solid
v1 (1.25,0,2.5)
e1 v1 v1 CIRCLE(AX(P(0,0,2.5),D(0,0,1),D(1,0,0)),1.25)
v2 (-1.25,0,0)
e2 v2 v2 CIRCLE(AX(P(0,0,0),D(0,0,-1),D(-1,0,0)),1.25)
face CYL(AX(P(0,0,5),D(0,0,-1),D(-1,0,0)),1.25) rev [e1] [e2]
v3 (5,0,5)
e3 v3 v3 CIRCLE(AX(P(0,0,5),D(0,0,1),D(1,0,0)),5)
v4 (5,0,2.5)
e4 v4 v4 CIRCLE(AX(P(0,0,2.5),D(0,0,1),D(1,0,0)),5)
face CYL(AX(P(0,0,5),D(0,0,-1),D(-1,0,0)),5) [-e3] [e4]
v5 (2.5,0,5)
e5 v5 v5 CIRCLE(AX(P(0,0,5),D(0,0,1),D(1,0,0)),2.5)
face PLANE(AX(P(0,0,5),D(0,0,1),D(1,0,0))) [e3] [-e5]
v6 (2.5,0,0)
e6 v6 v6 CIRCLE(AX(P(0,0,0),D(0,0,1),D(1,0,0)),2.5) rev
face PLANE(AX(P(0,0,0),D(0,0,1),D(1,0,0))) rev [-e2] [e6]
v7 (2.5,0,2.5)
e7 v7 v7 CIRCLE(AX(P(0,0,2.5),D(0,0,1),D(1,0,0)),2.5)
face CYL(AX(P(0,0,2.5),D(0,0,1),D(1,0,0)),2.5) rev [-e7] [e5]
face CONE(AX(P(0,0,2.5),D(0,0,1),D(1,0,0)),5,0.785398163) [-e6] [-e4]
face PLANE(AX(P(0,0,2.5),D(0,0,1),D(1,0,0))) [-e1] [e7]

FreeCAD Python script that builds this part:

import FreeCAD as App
import Part
import Sketcher
from FreeCAD import Vector


def edges_at(feature, points):
    """Names of the edges that pass closest to the given points."""
    edges = feature.Shape.Edges
    near = lambda p: min(range(len(edges)), key=lambda i: edges[i].distToShape(Part.Vertex(*p))[0])
    return sorted({f"Edge{near(p) + 1}" for p in points})

doc = App.newDocument("Part")
body = doc.addObject("PartDesign::Body", "Body")

# Sketch on XY plane
sketch1 = doc.addObject("Sketcher::SketchObject", "Sketch")
body.addObject(sketch1)
sketch1.AttachmentSupport = (doc.XY_Plane, [""])
sketch1.MapMode = "FlatFace"
sketch1.addGeometry(Part.Circle(Vector(0, 0, 0), Vector(0, 0, 1), 5), False)
sketch1.addConstraint([
    Sketcher.Constraint("Coincident", 0, 3, -1, 1),
    Sketcher.Constraint("Diameter", 0, 10.0),
])
pad1 = doc.addObject("PartDesign::Pad", "Pad")
body.addObject(pad1)
pad1.Profile = sketch1
pad1.Length = 5

# Sketch on XY plane
sketch2 = doc.addObject("Sketcher::SketchObject", "Sketch001")
body.addObject(sketch2)
sketch2.AttachmentSupport = (doc.XY_Plane, [""])
sketch2.MapMode = "FlatFace"
sketch2.AttachmentOffset = App.Placement(Vector(0, 0, 5), App.Rotation())
sketch2.addGeometry(Part.Circle(Vector(0, 0, 0), Vector(0, 0, 1), 2.5), False)
sketch2.addConstraint([
    Sketcher.Constraint("Coincident", 0, 3, -1, 1),
    Sketcher.Constraint("Diameter", 0, 5.0),
])
pocket1 = doc.addObject("PartDesign::Pocket", "Pocket")
body.addObject(pocket1)
pocket1.Profile = sketch2
pocket1.Length = 2.5

# Sketch on XY plane
sketch3 = doc.addObject("Sketcher::SketchObject", "Sketch002")
body.addObject(sketch3)
sketch3.AttachmentSupport = (doc.XY_Plane, [""])
sketch3.MapMode = "FlatFace"
sketch3.addGeometry(Part.Circle(Vector(0, 0, 0), Vector(0, 0, 1), 1.2), False)
sketch3.addConstraint([
    Sketcher.Constraint("Coincident", 0, 3, -1, 1),
    Sketcher.Constraint("Diameter", 0, 2.5),
])
pocket2 = doc.addObject("PartDesign::Pocket", "Pocket001")
body.addObject(pocket2)
pocket2.Profile = sketch3
pocket2.Type = "ThroughAll"
pocket2.Reversed = True
doc.recompute()

chamfer = doc.addObject("PartDesign::Chamfer", "Chamfer")
body.addObject(chamfer)
chamfer.Base = (pocket2, edges_at(pocket2, [(-5, 0, 0)]))
chamfer.Size = 2.5

doc.recompute()
